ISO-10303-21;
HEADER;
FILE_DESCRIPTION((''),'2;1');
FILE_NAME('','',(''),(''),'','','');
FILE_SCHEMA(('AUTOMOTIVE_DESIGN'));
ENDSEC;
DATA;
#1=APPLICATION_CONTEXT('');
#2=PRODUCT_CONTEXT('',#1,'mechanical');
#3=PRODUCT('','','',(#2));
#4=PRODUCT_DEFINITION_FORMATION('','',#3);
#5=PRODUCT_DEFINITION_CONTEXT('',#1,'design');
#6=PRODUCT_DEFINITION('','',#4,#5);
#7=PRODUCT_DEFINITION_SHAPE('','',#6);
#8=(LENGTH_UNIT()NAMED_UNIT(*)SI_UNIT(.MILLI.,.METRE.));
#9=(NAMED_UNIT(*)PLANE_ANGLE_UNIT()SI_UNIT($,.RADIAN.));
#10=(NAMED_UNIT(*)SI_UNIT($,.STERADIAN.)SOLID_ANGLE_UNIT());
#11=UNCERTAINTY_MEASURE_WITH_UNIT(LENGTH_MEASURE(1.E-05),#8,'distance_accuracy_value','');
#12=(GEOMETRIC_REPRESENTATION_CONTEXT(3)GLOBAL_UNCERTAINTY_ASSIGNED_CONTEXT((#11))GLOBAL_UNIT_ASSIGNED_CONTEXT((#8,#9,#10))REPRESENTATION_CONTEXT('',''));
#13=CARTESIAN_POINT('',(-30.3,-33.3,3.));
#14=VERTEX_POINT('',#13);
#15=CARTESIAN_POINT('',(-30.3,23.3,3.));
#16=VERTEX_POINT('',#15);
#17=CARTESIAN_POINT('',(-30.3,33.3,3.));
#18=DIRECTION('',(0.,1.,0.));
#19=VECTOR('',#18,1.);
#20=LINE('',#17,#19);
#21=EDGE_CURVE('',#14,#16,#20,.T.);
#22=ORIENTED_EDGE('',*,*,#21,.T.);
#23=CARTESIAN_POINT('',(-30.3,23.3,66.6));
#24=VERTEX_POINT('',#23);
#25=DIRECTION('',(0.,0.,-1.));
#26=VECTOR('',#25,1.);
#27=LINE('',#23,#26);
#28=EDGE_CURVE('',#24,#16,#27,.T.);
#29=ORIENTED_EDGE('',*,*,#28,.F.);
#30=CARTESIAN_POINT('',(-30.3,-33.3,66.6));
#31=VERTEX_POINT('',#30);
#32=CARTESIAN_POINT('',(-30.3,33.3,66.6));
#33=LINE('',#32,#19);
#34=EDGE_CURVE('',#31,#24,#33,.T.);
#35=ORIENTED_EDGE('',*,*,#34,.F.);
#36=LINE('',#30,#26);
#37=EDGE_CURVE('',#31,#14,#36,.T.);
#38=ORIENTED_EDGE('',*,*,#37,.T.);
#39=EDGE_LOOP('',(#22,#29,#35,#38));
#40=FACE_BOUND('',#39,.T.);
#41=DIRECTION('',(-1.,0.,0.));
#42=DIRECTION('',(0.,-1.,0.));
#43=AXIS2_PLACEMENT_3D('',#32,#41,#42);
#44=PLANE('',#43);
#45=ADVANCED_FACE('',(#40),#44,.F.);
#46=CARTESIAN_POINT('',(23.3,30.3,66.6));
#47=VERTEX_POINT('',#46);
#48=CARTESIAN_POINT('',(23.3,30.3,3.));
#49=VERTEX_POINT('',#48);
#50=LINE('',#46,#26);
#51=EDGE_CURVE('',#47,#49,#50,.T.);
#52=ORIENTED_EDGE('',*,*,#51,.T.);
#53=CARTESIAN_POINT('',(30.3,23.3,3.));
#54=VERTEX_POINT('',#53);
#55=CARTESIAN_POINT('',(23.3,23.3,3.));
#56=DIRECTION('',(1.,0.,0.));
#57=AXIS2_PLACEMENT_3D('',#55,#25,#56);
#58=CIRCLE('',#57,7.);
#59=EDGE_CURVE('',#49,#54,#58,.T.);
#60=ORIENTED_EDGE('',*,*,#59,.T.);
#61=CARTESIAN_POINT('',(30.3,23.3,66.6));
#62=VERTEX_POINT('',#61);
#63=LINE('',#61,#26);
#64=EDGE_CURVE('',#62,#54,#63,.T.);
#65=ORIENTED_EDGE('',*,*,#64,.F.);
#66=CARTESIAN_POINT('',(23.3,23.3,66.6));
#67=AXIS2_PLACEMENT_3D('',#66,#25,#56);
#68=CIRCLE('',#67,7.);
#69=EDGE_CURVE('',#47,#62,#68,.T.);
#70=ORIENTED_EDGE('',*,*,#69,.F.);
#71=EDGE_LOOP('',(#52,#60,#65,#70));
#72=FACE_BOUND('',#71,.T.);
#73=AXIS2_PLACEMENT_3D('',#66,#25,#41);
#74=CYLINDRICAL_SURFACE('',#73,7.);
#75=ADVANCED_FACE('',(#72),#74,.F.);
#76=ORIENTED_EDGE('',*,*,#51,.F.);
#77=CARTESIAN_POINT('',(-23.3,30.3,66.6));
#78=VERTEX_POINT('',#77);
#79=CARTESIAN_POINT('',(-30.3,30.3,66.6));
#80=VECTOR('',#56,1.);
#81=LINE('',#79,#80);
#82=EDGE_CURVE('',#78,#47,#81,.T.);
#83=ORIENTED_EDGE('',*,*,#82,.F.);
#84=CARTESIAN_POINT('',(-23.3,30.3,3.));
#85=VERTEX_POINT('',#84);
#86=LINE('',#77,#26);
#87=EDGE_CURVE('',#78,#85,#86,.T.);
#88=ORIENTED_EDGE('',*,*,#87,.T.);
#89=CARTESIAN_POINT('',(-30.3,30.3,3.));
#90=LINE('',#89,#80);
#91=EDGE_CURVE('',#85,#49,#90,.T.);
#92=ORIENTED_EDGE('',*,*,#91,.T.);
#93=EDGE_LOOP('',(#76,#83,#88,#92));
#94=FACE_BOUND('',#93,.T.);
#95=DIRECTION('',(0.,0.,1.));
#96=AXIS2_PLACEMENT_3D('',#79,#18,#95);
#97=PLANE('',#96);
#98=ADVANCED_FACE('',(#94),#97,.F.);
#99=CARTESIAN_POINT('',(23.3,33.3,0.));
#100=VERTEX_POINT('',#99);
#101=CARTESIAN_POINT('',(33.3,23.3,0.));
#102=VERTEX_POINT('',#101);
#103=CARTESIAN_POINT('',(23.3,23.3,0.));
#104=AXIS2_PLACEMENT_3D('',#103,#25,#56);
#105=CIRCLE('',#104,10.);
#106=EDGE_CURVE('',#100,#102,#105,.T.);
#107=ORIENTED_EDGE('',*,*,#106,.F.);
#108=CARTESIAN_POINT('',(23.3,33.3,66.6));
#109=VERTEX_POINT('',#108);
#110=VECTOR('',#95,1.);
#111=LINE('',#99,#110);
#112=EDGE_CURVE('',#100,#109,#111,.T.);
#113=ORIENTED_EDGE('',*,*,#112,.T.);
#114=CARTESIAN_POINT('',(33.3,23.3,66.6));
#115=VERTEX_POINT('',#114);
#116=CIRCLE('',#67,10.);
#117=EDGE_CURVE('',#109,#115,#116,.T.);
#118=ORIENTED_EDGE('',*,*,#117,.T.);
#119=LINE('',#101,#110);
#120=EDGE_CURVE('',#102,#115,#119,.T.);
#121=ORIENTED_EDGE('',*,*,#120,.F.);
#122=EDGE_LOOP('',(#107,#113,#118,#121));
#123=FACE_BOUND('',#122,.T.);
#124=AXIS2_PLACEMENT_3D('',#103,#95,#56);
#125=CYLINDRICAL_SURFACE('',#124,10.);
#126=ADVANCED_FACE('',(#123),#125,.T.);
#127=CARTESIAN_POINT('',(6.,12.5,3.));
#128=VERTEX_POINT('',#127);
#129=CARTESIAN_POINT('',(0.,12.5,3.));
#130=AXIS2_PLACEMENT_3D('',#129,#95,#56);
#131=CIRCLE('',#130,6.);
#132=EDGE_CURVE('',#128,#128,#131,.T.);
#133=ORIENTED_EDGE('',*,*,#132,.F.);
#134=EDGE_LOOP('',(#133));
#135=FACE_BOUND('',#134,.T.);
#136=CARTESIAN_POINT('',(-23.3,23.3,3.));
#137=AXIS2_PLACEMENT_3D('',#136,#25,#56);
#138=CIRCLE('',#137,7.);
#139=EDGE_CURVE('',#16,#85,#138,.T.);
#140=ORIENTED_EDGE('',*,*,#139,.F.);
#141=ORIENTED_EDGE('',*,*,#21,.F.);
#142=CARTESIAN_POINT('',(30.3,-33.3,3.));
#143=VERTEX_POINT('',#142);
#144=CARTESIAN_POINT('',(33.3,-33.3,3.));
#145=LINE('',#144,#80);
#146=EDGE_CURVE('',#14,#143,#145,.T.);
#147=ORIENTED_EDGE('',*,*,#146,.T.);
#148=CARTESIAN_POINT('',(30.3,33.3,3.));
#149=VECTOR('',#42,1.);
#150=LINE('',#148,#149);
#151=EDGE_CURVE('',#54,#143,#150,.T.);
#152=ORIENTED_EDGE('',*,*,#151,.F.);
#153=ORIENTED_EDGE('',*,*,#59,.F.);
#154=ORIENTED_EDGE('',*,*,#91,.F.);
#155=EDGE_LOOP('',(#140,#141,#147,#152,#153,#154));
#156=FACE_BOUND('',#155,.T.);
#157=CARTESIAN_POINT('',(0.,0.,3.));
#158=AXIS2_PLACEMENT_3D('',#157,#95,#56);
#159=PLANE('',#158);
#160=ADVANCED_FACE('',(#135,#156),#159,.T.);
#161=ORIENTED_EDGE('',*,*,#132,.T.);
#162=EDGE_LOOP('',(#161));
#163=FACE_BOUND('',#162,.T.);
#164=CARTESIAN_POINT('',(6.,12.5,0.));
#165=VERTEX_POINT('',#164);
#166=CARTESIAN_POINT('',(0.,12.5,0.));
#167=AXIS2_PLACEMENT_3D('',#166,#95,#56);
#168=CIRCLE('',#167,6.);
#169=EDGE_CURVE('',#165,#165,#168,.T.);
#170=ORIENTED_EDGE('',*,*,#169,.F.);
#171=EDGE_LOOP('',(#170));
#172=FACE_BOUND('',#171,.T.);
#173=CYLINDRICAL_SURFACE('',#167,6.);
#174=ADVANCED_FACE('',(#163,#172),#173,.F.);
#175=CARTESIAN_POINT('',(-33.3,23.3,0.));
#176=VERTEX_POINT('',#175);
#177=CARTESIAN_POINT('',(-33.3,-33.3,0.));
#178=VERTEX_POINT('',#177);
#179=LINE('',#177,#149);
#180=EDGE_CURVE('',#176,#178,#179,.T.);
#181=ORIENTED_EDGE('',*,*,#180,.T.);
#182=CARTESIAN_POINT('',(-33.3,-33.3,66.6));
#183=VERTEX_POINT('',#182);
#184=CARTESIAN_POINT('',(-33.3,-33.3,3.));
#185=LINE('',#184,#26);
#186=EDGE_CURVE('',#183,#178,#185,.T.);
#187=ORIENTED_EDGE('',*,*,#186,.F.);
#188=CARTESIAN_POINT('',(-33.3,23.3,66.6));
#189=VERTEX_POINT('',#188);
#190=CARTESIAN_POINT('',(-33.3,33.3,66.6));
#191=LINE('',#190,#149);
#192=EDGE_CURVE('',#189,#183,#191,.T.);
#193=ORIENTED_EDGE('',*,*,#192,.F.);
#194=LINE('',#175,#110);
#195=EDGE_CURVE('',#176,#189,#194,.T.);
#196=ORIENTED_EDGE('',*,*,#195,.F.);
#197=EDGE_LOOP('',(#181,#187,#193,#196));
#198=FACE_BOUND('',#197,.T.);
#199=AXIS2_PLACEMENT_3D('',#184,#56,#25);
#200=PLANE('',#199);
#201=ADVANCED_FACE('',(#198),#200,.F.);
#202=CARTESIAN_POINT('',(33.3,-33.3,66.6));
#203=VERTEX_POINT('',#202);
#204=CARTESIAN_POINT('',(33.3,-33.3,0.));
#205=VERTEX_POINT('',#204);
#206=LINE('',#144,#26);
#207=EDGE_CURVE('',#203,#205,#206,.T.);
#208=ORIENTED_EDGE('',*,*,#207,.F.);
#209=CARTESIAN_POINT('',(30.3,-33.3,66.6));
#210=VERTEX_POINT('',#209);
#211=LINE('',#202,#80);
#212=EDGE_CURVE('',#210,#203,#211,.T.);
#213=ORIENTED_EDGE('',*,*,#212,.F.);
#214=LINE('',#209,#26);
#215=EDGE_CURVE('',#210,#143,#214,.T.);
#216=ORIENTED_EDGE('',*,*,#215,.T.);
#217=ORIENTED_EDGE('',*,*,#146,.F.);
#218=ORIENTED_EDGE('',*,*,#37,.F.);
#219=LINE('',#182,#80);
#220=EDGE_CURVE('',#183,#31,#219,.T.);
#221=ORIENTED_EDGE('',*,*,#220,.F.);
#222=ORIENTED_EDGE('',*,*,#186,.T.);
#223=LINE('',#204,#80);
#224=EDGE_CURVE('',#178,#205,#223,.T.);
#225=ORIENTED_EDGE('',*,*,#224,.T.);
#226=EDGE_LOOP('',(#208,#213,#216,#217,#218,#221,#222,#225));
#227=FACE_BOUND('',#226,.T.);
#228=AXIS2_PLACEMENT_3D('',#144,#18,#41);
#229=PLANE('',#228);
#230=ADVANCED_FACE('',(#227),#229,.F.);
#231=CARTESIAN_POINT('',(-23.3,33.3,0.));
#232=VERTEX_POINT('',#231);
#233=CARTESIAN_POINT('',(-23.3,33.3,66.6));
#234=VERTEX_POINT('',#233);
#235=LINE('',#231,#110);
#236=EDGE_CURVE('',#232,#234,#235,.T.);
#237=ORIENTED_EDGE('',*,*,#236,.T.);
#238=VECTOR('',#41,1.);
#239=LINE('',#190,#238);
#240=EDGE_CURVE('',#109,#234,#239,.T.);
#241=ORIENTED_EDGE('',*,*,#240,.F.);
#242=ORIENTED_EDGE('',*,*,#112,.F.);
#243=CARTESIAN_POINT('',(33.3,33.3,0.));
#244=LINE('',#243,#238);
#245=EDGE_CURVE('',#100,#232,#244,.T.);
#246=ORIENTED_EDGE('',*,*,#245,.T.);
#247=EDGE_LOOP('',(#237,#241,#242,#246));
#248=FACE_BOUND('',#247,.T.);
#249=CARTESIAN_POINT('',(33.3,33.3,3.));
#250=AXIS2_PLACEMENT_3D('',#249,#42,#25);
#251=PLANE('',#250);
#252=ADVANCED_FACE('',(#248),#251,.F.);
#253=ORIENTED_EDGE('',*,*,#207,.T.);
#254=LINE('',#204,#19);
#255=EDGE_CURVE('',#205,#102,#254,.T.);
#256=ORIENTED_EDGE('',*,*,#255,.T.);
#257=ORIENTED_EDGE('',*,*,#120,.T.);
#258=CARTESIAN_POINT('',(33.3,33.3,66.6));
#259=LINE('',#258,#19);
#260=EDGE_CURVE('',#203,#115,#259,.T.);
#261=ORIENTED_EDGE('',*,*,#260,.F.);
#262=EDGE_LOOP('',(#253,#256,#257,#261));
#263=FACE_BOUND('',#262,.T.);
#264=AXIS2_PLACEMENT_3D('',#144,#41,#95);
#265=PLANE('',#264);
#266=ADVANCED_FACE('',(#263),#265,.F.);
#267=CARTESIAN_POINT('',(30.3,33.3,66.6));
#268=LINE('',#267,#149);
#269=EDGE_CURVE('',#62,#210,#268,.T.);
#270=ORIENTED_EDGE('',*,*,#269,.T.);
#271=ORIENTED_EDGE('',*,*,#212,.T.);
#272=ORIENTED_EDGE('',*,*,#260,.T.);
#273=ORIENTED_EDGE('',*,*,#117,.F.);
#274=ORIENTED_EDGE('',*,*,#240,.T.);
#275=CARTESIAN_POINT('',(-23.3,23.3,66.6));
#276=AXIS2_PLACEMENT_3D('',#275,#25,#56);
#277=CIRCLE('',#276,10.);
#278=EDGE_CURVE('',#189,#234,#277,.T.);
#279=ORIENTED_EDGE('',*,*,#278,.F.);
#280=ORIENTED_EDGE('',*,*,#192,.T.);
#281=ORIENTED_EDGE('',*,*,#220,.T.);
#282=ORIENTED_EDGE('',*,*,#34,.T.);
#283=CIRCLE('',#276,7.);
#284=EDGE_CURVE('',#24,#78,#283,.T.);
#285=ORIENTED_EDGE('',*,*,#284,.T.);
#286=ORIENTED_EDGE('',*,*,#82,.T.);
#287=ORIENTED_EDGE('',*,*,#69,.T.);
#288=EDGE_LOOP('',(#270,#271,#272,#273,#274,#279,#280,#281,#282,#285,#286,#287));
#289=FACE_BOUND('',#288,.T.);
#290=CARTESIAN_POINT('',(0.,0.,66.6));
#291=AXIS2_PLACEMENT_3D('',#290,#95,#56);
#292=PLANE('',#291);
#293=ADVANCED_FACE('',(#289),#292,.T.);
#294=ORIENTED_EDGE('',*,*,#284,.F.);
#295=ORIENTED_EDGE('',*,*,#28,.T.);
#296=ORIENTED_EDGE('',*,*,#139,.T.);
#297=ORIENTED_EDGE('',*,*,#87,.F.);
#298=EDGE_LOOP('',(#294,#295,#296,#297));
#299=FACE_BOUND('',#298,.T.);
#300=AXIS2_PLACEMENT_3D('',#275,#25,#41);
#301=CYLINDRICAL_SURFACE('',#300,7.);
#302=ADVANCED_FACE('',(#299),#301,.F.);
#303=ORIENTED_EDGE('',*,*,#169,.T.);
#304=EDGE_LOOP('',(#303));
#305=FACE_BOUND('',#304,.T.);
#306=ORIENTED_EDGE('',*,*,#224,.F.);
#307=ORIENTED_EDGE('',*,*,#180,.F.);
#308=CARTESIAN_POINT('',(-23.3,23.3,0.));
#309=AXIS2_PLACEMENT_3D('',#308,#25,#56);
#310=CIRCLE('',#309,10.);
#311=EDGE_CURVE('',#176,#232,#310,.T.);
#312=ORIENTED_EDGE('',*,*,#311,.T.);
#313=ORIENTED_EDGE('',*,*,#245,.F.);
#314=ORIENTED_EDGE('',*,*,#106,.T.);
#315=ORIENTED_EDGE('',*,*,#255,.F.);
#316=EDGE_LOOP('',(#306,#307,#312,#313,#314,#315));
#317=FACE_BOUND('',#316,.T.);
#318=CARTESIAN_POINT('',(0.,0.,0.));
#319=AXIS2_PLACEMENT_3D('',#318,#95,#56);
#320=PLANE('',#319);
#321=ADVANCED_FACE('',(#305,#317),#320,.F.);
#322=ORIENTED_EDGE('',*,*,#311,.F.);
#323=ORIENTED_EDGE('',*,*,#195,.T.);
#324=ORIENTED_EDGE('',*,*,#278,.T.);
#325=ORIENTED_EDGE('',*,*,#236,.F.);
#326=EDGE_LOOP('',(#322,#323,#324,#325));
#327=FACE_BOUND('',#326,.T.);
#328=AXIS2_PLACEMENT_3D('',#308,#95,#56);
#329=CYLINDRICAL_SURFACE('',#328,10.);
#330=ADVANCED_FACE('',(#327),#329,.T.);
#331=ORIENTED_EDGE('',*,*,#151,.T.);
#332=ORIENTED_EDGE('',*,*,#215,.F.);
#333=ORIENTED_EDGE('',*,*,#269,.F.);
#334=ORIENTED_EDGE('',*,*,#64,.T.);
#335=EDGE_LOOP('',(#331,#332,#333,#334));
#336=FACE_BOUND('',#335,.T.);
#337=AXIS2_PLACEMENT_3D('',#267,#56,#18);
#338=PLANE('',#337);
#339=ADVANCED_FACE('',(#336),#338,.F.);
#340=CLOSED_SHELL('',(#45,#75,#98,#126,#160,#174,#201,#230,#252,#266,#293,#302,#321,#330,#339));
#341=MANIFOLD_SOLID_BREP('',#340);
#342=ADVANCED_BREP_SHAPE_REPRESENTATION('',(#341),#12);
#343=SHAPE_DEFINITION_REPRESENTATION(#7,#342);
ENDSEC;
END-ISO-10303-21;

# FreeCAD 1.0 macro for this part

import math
import FreeCAD as App
import Part
import Sketcher
Q = App.Units.Quantity


def add_polygon(sketch, points):
    """Adds a closed chain of lines whose ends are joined by coincident constraints."""
    first, n = sketch.GeometryCount, len(points)
    for a, b in zip(points, points[1:] + points[:1]):
        sketch.addGeometry(Part.LineSegment(App.Vector(*a, 0), App.Vector(*b, 0)), False)
    for i in range(n):
        sketch.addConstraint(Sketcher.Constraint("Coincident", first + i, 2, first + (i + 1) % n, 1))

doc = App.newDocument("Part")
body = doc.addObject("PartDesign::Body", "Body")

sketch1 = body.newObject("Sketcher::SketchObject", "Sketch")
sketch1.AttachmentSupport = (doc.getObject("XY_Plane"), [""])
sketch1.MapMode = "FlatFace"
add_polygon(sketch1, [(-33, 33), (-33, -33), (33, -33), (33, 33)])
sketch1.addConstraint([
    Sketcher.Constraint("Vertical", 0),
    Sketcher.Constraint("Horizontal", 1),
    Sketcher.Constraint("Vertical", 2),
    Sketcher.Constraint("Horizontal", 3),
    Sketcher.Constraint("Symmetric", 0, 2, 2, 2, -1, 1),
    Sketcher.Constraint("Equal", 3, 0),
    Sketcher.Constraint("DistanceX", 1, 1, 1, 2, Q("66.6 mm")),
])
pad1 = body.newObject("PartDesign::Pad", "Pad")
pad1.Profile = sketch1
pad1.Length = 3

sketch2 = body.newObject("Sketcher::SketchObject", "Sketch001")
sketch2.AttachmentSupport = (doc.getObject("XY_Plane"), [""])
sketch2.MapMode = "FlatFace"
sketch2.AttachmentOffset = App.Placement(App.Vector(0, 0, 3), App.Rotation())
add_polygon(sketch2, [(-33.3, 33.3), (-33.3, -33.3), (-30.3, -33.3), (-30.3, 33.3)])
add_polygon(sketch2, [(30.3, 33.3), (30.3, -33.3), (33.3, -33.3), (33.3, 33.3)])
sketch2.addConstraint([
    Sketcher.Constraint("Vertical", 0),
    Sketcher.Constraint("Horizontal", 1),
    Sketcher.Constraint("Vertical", 2),
    Sketcher.Constraint("Horizontal", 3),
    Sketcher.Constraint("Vertical", 4),
    Sketcher.Constraint("Horizontal", 5),
    Sketcher.Constraint("Vertical", 6),
    Sketcher.Constraint("Horizontal", 7),
    Sketcher.Constraint("Symmetric", 2, 2, 4, 2, -1, 1),
    Sketcher.Constraint("Symmetric", 0, 2, 6, 2, -1, 1),
    Sketcher.Constraint("Horizontal", 1, 2, 4, 2),
    Sketcher.Constraint("DistanceX", 1, 1, 1, 2, Q("3 mm")),
    Sketcher.Constraint("DistanceY", 0, 2, 0, 1, Q("66.6 mm")),
    Sketcher.Constraint("DistanceX", 0, 2, -1, 1, Q("33.3 mm")),
])
pad2 = body.newObject("PartDesign::Pad", "Pad001")
pad2.Profile = sketch2
pad2.Length = 63.6

sketch3 = body.newObject("Sketcher::SketchObject", "Sketch002")
sketch3.AttachmentSupport = (doc.getObject("XY_Plane"), [""])
sketch3.MapMode = "FlatFace"
sketch3.AttachmentOffset = App.Placement(App.Vector(0, 0, 3), App.Rotation())
add_polygon(sketch3, [(-30.3, 33.3), (-30.3, 30.3), (30.3, 30.3), (30.3, 33.3)])
sketch3.addConstraint([
    Sketcher.Constraint("Vertical", 0),
    Sketcher.Constraint("Horizontal", 1),
    Sketcher.Constraint("Vertical", 2),
    Sketcher.Constraint("Horizontal", 3),
    Sketcher.Constraint("DistanceY", 0, 2, 0, 1, Q("3 mm")),
    Sketcher.Constraint("DistanceX", 1, 1, 1, 2, Q("60.6 mm")),
    Sketcher.Constraint("DistanceX", 0, 2, -1, 1, Q("30.3 mm")),
    Sketcher.Constraint("DistanceY", -1, 1, 0, 2, Q("30.3 mm")),
])
pad3 = body.newObject("PartDesign::Pad", "Pad002")
pad3.Profile = sketch3
pad3.Length = 63.6

sketch4 = body.newObject("Sketcher::SketchObject", "Sketch003")
sketch4.AttachmentSupport = (doc.getObject("XY_Plane"), [""])
sketch4.MapMode = "FlatFace"
sketch4.AttachmentOffset = App.Placement(App.Vector(0, 0, 66.6), App.Rotation())
sketch4.addGeometry([
    Part.LineSegment(App.Vector(-33, 33, 0), App.Vector(-33, 23, 0)),
    Part.ArcOfCircle(Part.Circle(App.Vector(-23, 23, 0), App.Vector(0, 0, 1), 10), math.radians(90), math.radians(180)),
    Part.LineSegment(App.Vector(-23, 33, 0), App.Vector(-33, 33, 0)),
    Part.LineSegment(App.Vector(33, 23, 0), App.Vector(33, 33, 0)),
    Part.LineSegment(App.Vector(33, 33, 0), App.Vector(23, 33, 0)),
    Part.ArcOfCircle(Part.Circle(App.Vector(23, 23, 0), App.Vector(0, 0, 1), 10), math.radians(0), math.radians(90)),
], False)
sketch4.addConstraint([
    Sketcher.Constraint("Tangent", 0, 2, 1, 2),
    Sketcher.Constraint("Tangent", 1, 1, 2, 1),
    Sketcher.Constraint("Coincident", 2, 2, 0, 1),
    Sketcher.Constraint("Coincident", 3, 2, 4, 1),
    Sketcher.Constraint("Tangent", 4, 2, 5, 2),
    Sketcher.Constraint("Tangent", 5, 1, 3, 1),
    Sketcher.Constraint("Vertical", 0),
    Sketcher.Constraint("Horizontal", 2),
    Sketcher.Constraint("Vertical", 3),
    Sketcher.Constraint("Horizontal", 4),
    Sketcher.Constraint("Equal", 1, 5),
    Sketcher.Constraint("Symmetric", 1, 3, 5, 3, -2),
    Sketcher.Constraint("Radius", 1, Q("10 mm")),
    Sketcher.Constraint("DistanceX", 1, 3, -1, 1, Q("23.3 mm")),
    Sketcher.Constraint("DistanceY", -1, 1, 1, 3, Q("23.3 mm")),
])
pocket1 = body.newObject("PartDesign::Pocket", "Pocket")
pocket1.Profile = sketch4
pocket1.Length = 66.6

sketch5 = body.newObject("Sketcher::SketchObject", "Sketch004")
sketch5.AttachmentSupport = (doc.getObject("XY_Plane"), [""])
sketch5.MapMode = "FlatFace"
sketch5.AttachmentOffset = App.Placement(App.Vector(0, 0, 3), App.Rotation())
sketch5.addGeometry([
    Part.LineSegment(App.Vector(-30, 30, 0), App.Vector(-30, 23, 0)),
    Part.ArcOfCircle(Part.Circle(App.Vector(-23, 23, 0), App.Vector(0, 0, 1), 7), math.radians(90), math.radians(180)),
    Part.LineSegment(App.Vector(-23, 30, 0), App.Vector(-30, 30, 0)),
    Part.LineSegment(App.Vector(30, 23, 0), App.Vector(30, 30, 0)),
    Part.LineSegment(App.Vector(30, 30, 0), App.Vector(23, 30, 0)),
    Part.ArcOfCircle(Part.Circle(App.Vector(23, 23, 0), App.Vector(0, 0, 1), 7), math.radians(0), math.radians(90)),
], False)
sketch5.addConstraint([
    Sketcher.Constraint("Tangent", 0, 2, 1, 2),
    Sketcher.Constraint("Tangent", 1, 1, 2, 1),
    Sketcher.Constraint("Coincident", 2, 2, 0, 1),
    Sketcher.Constraint("Coincident", 3, 2, 4, 1),
    Sketcher.Constraint("Tangent", 4, 2, 5, 2),
    Sketcher.Constraint("Tangent", 5, 1, 3, 1),
    Sketcher.Constraint("Vertical", 0),
    Sketcher.Constraint("Horizontal", 2),
    Sketcher.Constraint("Vertical", 3),
    Sketcher.Constraint("Horizontal", 4),
    Sketcher.Constraint("Equal", 1, 5),
    Sketcher.Constraint("Symmetric", 1, 3, 5, 3, -2),
    Sketcher.Constraint("Radius", 1, Q("7 mm")),
    Sketcher.Constraint("DistanceX", 1, 3, -1, 1, Q("23.3 mm")),
    Sketcher.Constraint("DistanceY", -1, 1, 1, 3, Q("23.3 mm")),
])
pad4 = body.newObject("PartDesign::Pad", "Pad003")
pad4.Profile = sketch5
pad4.Length = 63.6

sketch6 = body.newObject("Sketcher::SketchObject", "Sketch005")
sketch6.AttachmentSupport = (doc.getObject("XY_Plane"), [""])
sketch6.MapMode = "FlatFace"
sketch6.AttachmentOffset = App.Placement(App.Vector(0, 0, 3), App.Rotation())
sketch6.addGeometry(Part.Circle(App.Vector(0, 12, 0), App.Vector(0, 0, 1), 6), False)
sketch6.addConstraint([
    Sketcher.Constraint("PointOnObject", 0, 3, -2),
    Sketcher.Constraint("Diameter", 0, Q("12 mm")),
    Sketcher.Constraint("DistanceY", -1, 1, 0, 3, Q("12.5 mm")),
])
pocket2 = body.newObject("PartDesign::Pocket", "Pocket001")
pocket2.Profile = sketch6
pocket2.Type = "ThroughAll"

doc.recompute()
